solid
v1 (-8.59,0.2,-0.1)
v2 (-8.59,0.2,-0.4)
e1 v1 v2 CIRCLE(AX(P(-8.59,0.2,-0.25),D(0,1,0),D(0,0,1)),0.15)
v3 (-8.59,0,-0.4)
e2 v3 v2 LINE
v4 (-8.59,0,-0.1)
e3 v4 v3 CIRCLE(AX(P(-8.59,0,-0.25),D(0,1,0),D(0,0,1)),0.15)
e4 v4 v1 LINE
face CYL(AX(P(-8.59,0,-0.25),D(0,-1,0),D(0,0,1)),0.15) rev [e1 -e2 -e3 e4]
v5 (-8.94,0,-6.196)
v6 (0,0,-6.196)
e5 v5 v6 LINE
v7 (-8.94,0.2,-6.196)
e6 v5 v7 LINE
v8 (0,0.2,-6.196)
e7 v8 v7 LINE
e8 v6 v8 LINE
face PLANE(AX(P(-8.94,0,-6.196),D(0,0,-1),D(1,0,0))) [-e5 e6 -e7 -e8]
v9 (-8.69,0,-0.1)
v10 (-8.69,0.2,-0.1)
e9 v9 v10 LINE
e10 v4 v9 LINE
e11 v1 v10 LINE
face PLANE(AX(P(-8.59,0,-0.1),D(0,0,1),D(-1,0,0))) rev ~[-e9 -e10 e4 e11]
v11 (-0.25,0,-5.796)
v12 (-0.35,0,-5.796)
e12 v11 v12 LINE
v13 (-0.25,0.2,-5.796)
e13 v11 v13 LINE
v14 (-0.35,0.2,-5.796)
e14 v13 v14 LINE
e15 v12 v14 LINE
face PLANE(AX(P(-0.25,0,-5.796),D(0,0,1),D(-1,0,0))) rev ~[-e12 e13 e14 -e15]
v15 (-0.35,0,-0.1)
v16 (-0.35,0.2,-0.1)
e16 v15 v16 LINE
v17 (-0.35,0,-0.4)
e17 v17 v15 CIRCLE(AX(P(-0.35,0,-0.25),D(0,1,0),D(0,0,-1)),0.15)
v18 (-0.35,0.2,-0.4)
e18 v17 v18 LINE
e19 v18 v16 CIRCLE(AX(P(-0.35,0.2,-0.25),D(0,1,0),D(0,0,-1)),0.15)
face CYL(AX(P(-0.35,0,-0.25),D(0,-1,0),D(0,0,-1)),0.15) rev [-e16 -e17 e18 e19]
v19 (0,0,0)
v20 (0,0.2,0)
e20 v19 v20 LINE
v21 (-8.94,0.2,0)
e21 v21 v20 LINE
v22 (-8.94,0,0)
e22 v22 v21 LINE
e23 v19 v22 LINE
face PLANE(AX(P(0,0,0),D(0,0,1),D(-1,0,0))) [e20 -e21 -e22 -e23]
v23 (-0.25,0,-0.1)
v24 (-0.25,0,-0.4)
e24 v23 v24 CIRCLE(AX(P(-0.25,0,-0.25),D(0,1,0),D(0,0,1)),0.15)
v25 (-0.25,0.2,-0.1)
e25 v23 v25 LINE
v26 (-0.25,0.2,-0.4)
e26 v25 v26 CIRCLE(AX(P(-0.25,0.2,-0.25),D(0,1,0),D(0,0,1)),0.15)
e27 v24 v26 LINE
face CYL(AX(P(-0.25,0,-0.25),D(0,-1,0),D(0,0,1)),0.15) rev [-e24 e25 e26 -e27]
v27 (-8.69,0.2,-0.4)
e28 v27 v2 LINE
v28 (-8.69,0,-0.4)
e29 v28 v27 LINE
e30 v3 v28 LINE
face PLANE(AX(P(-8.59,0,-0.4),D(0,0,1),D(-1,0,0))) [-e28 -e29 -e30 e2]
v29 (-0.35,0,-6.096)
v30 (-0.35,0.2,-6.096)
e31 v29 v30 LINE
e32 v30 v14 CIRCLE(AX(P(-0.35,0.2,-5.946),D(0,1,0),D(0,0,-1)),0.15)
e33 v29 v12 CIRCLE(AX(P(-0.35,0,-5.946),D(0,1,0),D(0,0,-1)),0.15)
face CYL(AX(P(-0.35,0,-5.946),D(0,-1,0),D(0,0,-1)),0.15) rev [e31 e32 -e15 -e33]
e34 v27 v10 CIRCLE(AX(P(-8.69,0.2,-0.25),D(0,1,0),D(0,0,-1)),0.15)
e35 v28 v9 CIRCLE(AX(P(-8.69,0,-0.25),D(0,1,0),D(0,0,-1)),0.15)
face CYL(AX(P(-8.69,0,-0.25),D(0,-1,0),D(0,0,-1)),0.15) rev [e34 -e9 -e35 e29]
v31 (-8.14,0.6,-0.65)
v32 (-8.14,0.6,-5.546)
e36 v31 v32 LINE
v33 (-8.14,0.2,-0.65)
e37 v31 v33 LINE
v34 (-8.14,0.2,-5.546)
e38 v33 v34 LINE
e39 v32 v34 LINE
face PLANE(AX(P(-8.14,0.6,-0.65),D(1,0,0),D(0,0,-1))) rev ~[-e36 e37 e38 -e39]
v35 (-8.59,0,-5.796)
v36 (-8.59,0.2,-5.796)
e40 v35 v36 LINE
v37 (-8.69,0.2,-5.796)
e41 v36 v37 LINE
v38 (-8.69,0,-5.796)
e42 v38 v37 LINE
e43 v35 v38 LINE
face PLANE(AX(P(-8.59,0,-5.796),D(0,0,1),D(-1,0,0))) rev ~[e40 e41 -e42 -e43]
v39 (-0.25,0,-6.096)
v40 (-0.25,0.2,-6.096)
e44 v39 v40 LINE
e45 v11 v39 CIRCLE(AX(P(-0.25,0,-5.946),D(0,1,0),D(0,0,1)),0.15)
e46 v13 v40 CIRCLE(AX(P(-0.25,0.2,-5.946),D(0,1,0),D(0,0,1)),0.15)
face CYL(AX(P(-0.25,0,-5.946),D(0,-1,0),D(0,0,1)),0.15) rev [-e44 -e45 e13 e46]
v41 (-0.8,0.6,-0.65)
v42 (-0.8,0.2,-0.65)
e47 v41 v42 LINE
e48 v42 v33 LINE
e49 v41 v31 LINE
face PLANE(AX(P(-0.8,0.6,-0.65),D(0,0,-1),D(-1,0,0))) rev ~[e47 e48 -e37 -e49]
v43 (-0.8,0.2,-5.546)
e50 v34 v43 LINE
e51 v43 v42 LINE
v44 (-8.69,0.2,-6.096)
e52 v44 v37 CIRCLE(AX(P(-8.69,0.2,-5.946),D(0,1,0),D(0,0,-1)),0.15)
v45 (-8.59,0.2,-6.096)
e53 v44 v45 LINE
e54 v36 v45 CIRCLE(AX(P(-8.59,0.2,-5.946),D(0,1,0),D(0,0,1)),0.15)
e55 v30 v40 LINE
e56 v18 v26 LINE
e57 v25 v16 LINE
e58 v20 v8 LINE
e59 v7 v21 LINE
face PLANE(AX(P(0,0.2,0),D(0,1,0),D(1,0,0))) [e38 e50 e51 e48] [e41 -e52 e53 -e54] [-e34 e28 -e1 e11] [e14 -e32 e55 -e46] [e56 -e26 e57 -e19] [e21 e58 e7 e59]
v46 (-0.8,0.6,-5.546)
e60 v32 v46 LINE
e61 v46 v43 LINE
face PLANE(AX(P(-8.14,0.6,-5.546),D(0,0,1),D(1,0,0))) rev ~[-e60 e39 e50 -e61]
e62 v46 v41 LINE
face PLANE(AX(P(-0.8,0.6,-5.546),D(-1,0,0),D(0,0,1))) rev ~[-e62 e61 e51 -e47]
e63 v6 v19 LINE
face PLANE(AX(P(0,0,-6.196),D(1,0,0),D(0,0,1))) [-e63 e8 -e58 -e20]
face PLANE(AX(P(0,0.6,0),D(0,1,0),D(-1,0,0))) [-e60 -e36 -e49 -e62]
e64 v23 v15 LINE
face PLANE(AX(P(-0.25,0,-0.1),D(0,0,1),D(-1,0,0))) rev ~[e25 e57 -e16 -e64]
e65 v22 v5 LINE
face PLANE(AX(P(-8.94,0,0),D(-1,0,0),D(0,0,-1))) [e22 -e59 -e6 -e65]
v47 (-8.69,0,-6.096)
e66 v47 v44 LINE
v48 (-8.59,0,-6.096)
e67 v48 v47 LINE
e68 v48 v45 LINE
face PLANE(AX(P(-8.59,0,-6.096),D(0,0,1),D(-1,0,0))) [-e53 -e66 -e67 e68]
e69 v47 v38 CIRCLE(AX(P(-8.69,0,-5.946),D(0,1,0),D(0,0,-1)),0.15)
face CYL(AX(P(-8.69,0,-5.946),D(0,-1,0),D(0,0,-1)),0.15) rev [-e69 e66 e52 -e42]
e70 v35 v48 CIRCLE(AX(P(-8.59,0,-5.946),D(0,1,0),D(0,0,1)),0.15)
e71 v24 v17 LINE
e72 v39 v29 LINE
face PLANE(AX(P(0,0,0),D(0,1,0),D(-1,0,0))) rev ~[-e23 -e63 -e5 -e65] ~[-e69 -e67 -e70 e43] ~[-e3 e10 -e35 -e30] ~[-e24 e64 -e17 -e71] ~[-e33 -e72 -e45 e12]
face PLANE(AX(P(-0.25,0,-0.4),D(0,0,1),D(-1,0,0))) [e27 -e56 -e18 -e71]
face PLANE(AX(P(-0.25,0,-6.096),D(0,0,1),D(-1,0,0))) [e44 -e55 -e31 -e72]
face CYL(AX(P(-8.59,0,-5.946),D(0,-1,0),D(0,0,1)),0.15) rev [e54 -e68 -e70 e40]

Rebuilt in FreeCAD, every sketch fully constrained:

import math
import FreeCAD as App
import Part
import Sketcher

doc = App.newDocument("Part")
body = doc.addObject("PartDesign::Body", "Body")

# Sketch on XZ plane
sketch1 = doc.addObject("Sketcher::SketchObject", "Sketch")
body.addObject(sketch1)
sketch1.AttachmentSupport = (doc.XZ_Plane, [""])
sketch1.MapMode = "FlatFace"
sketch1.addGeometry([
    Part.LineSegment(App.Vector(-8.94, 0, 0), App.Vector(0, 0, 0)),  # 0
    Part.LineSegment(App.Vector(0, 0, 0), App.Vector(0, -6.196, 0)),  # 1
    Part.LineSegment(App.Vector(0, -6.196, 0), App.Vector(-8.94, -6.196, 0)),  # 2
    Part.LineSegment(App.Vector(-8.94, -6.196, 0), App.Vector(-8.94, 0, 0)),  # 3
    Part.ArcOfCircle(Part.Circle(App.Vector(-0.25, -5.946, 0), App.Vector(0, 0, 1), 0.15), math.radians(-90), math.radians(90)),  # 4
    Part.LineSegment(App.Vector(-0.25, -5.796, 0), App.Vector(-0.35, -5.796, 0)),  # 5
    Part.ArcOfCircle(Part.Circle(App.Vector(-0.35, -5.946, 0), App.Vector(0, 0, 1), 0.15), math.radians(90), math.radians(270)),  # 6
    Part.LineSegment(App.Vector(-0.35, -6.096, 0), App.Vector(-0.25, -6.096, 0)),  # 7
    Part.ArcOfCircle(Part.Circle(App.Vector(-8.59, -5.946, 0), App.Vector(0, 0, 1), 0.15), math.radians(-90), math.radians(90)),  # 8
    Part.LineSegment(App.Vector(-8.59, -5.796, 0), App.Vector(-8.69, -5.796, 0)),  # 9
    Part.ArcOfCircle(Part.Circle(App.Vector(-8.69, -5.946, 0), App.Vector(0, 0, 1), 0.15), math.radians(90), math.radians(270)),  # 10
    Part.LineSegment(App.Vector(-8.69, -6.096, 0), App.Vector(-8.59, -6.096, 0)),  # 11
    Part.ArcOfCircle(Part.Circle(App.Vector(-0.25, -0.25, 0), App.Vector(0, 0, 1), 0.15), math.radians(-90), math.radians(90)),  # 12
    Part.LineSegment(App.Vector(-0.25, -0.1, 0), App.Vector(-0.35, -0.1, 0)),  # 13
    Part.ArcOfCircle(Part.Circle(App.Vector(-0.35, -0.25, 0), App.Vector(0, 0, 1), 0.15), math.radians(90), math.radians(270)),  # 14
    Part.LineSegment(App.Vector(-0.35, -0.4, 0), App.Vector(-0.25, -0.4, 0)),  # 15
    Part.ArcOfCircle(Part.Circle(App.Vector(-8.59, -0.25, 0), App.Vector(0, 0, 1), 0.15), math.radians(-90), math.radians(90)),  # 16
    Part.LineSegment(App.Vector(-8.59, -0.1, 0), App.Vector(-8.69, -0.1, 0)),  # 17
    Part.ArcOfCircle(Part.Circle(App.Vector(-8.69, -0.25, 0), App.Vector(0, 0, 1), 0.15), math.radians(90), math.radians(270)),  # 18
    Part.LineSegment(App.Vector(-8.69, -0.4, 0), App.Vector(-8.59, -0.4, 0)),  # 19
], False)
sketch1.addConstraint([
    Sketcher.Constraint("Coincident", 0, 2, 1, 1),
    Sketcher.Constraint("Coincident", 1, 2, 2, 1),
    Sketcher.Constraint("Coincident", 2, 2, 3, 1),
    Sketcher.Constraint("Coincident", 3, 2, 0, 1),
    Sketcher.Constraint("Tangent", 4, 2, 5, 1),
    Sketcher.Constraint("Tangent", 5, 2, 6, 1),
    Sketcher.Constraint("Tangent", 6, 2, 7, 1),
    Sketcher.Constraint("Tangent", 7, 2, 4, 1),
    Sketcher.Constraint("Tangent", 8, 2, 9, 1),
    Sketcher.Constraint("Tangent", 9, 2, 10, 1),
    Sketcher.Constraint("Tangent", 10, 2, 11, 1),
    Sketcher.Constraint("Tangent", 11, 2, 8, 1),
    Sketcher.Constraint("Tangent", 12, 2, 13, 1),
    Sketcher.Constraint("Tangent", 13, 2, 14, 1),
    Sketcher.Constraint("Tangent", 14, 2, 15, 1),
    Sketcher.Constraint("Tangent", 15, 2, 12, 1),
    Sketcher.Constraint("Tangent", 16, 2, 17, 1),
    Sketcher.Constraint("Tangent", 17, 2, 18, 1),
    Sketcher.Constraint("Tangent", 18, 2, 19, 1),
    Sketcher.Constraint("Tangent", 19, 2, 16, 1),
    Sketcher.Constraint("Horizontal", 0),
    Sketcher.Constraint("Vertical", 1),
    Sketcher.Constraint("Horizontal", 2),
    Sketcher.Constraint("Vertical", 3),
    Sketcher.Constraint("Horizontal", 5),
    Sketcher.Constraint("Horizontal", 7),
    Sketcher.Constraint("Horizontal", 9),
    Sketcher.Constraint("Horizontal", 11),
    Sketcher.Constraint("Horizontal", 13),
    Sketcher.Constraint("Horizontal", 15),
    Sketcher.Constraint("Horizontal", 17),
    Sketcher.Constraint("Horizontal", 19),
    Sketcher.Constraint("Coincident", 0, 2, -1, 1),
    Sketcher.Constraint("Equal", 6, 8),
    Sketcher.Constraint("Equal", 10, 12),
    Sketcher.Constraint("Equal", 14, 16),
    Sketcher.Constraint("Horizontal", 6, 3, 8, 3),
    Sketcher.Constraint("Horizontal", 14, 3, 16, 3),
    Sketcher.Constraint("Vertical", 4, 3, 12, 3),
    Sketcher.Constraint("Vertical", 6, 3, 14, 3),
    Sketcher.Constraint("Vertical", 8, 3, 16, 3),
    Sketcher.Constraint("Vertical", 10, 3, 18, 3),
    Sketcher.Constraint("Equal", 7, 9),
    Sketcher.Constraint("Radius", 4, 0.15),
    Sketcher.Constraint("DistanceX", 5, 2, 5, 1, 0.1),
    Sketcher.Constraint("DistanceX", 0, 1, 0, 2, 8.94),
    Sketcher.Constraint("DistanceY", 12, 2, -1, 1, 0.1),
    Sketcher.Constraint("DistanceY", 1, 2, 4, 2, 0.4),
    Sketcher.Constraint("DistanceY", 1, 2, 1, 1, 6.196),
    Sketcher.Constraint("DistanceX", 4, 3, -1, 1, 0.25),
    Sketcher.Constraint("DistanceX", 8, 3, -1, 1, 8.59),
])
pad1 = doc.addObject("PartDesign::Pad", "Pad")
body.addObject(pad1)
pad1.Profile = sketch1
pad1.Length = 0.6
pad1.Reversed = True

# Sketch on XZ plane
sketch2 = doc.addObject("Sketcher::SketchObject", "Sketch001")
body.addObject(sketch2)
sketch2.AttachmentSupport = (doc.XZ_Plane, [""])
sketch2.MapMode = "FlatFace"
sketch2.AttachmentOffset = App.Placement(App.Vector(0, 0, -0.6), App.Rotation())
sketch2.addGeometry([
    Part.LineSegment(App.Vector(-8.94, -6.196, 0), App.Vector(-8.94, 0, 0)),  # 0
    Part.LineSegment(App.Vector(-8.94, 0, 0), App.Vector(0, 0, 0)),  # 1
    Part.LineSegment(App.Vector(0, 0, 0), App.Vector(0, -6.196, 0)),  # 2
    Part.LineSegment(App.Vector(0, -6.196, 0), App.Vector(-8.94, -6.196, 0)),  # 3
    Part.ArcOfCircle(Part.Circle(App.Vector(-8.59, -0.25, 0), App.Vector(0, 0, 1), 0.15), math.radians(-90), math.radians(90)),  # 4
    Part.LineSegment(App.Vector(-8.59, -0.1, 0), App.Vector(-8.69, -0.1, 0)),  # 5
    Part.ArcOfCircle(Part.Circle(App.Vector(-8.69, -0.25, 0), App.Vector(0, 0, 1), 0.15), math.radians(90), math.radians(270)),  # 6
    Part.LineSegment(App.Vector(-8.69, -0.4, 0), App.Vector(-8.59, -0.4, 0)),  # 7
    Part.ArcOfCircle(Part.Circle(App.Vector(-0.25, -0.25, 0), App.Vector(0, 0, 1), 0.15), math.radians(-90), math.radians(90)),  # 8
    Part.LineSegment(App.Vector(-0.25, -0.1, 0), App.Vector(-0.35, -0.1, 0)),  # 9
    Part.ArcOfCircle(Part.Circle(App.Vector(-0.35, -0.25, 0), App.Vector(0, 0, 1), 0.15), math.radians(90), math.radians(270)),  # 10
    Part.LineSegment(App.Vector(-0.35, -0.4, 0), App.Vector(-0.25, -0.4, 0)),  # 11
    Part.LineSegment(App.Vector(-8.14, -5.546, 0), App.Vector(-0.8, -5.546, 0)),  # 12
    Part.LineSegment(App.Vector(-0.8, -5.546, 0), App.Vector(-0.8, -0.65, 0)),  # 13
    Part.LineSegment(App.Vector(-0.8, -0.65, 0), App.Vector(-8.14, -0.65, 0)),  # 14
    Part.LineSegment(App.Vector(-8.14, -0.65, 0), App.Vector(-8.14, -5.546, 0)),  # 15
    Part.ArcOfCircle(Part.Circle(App.Vector(-8.59, -5.946, 0), App.Vector(0, 0, 1), 0.15), math.radians(-90), math.radians(90)),  # 16
    Part.LineSegment(App.Vector(-8.59, -5.796, 0), App.Vector(-8.69, -5.796, 0)),  # 17
    Part.ArcOfCircle(Part.Circle(App.Vector(-8.69, -5.946, 0), App.Vector(0, 0, 1), 0.15), math.radians(90), math.radians(270)),  # 18
    Part.LineSegment(App.Vector(-8.69, -6.096, 0), App.Vector(-8.59, -6.096, 0)),  # 19
    Part.ArcOfCircle(Part.Circle(App.Vector(-0.25, -5.946, 0), App.Vector(0, 0, 1), 0.15), math.radians(-90), math.radians(90)),  # 20
    Part.LineSegment(App.Vector(-0.25, -5.796, 0), App.Vector(-0.35, -5.796, 0)),  # 21
    Part.ArcOfCircle(Part.Circle(App.Vector(-0.35, -5.946, 0), App.Vector(0, 0, 1), 0.15), math.radians(90), math.radians(270)),  # 22
    Part.LineSegment(App.Vector(-0.35, -6.096, 0), App.Vector(-0.25, -6.096, 0)),  # 23
], False)
sketch2.addConstraint([
    Sketcher.Constraint("Coincident", 0, 2, 1, 1),
    Sketcher.Constraint("Coincident", 1, 2, 2, 1),
    Sketcher.Constraint("Coincident", 2, 2, 3, 1),
    Sketcher.Constraint("Coincident", 3, 2, 0, 1),
    Sketcher.Constraint("Tangent", 4, 2, 5, 1),
    Sketcher.Constraint("Tangent", 5, 2, 6, 1),
    Sketcher.Constraint("Tangent", 6, 2, 7, 1),
    Sketcher.Constraint("Tangent", 7, 2, 4, 1),
    Sketcher.Constraint("Tangent", 8, 2, 9, 1),
    Sketcher.Constraint("Tangent", 9, 2, 10, 1),
    Sketcher.Constraint("Tangent", 10, 2, 11, 1),
    Sketcher.Constraint("Tangent", 11, 2, 8, 1),
    Sketcher.Constraint("Coincident", 12, 2, 13, 1),
    Sketcher.Constraint("Coincident", 13, 2, 14, 1),
    Sketcher.Constraint("Coincident", 14, 2, 15, 1),
    Sketcher.Constraint("Coincident", 15, 2, 12, 1),
    Sketcher.Constraint("Tangent", 16, 2, 17, 1),
    Sketcher.Constraint("Tangent", 17, 2, 18, 1),
    Sketcher.Constraint("Tangent", 18, 2, 19, 1),
    Sketcher.Constraint("Tangent", 19, 2, 16, 1),
    Sketcher.Constraint("Tangent", 20, 2, 21, 1),
    Sketcher.Constraint("Tangent", 21, 2, 22, 1),
    Sketcher.Constraint("Tangent", 22, 2, 23, 1),
    Sketcher.Constraint("Tangent", 23, 2, 20, 1),
    Sketcher.Constraint("Vertical", 0),
    Sketcher.Constraint("Horizontal", 1),
    Sketcher.Constraint("Vertical", 2),
    Sketcher.Constraint("Horizontal", 3),
    Sketcher.Constraint("Horizontal", 5),
    Sketcher.Constraint("Horizontal", 7),
    Sketcher.Constraint("Horizontal", 9),
    Sketcher.Constraint("Horizontal", 11),
    Sketcher.Constraint("Horizontal", 12),
    Sketcher.Constraint("Vertical", 13),
    Sketcher.Constraint("Horizontal", 14),
    Sketcher.Constraint("Vertical", 15),
    Sketcher.Constraint("Horizontal", 17),
    Sketcher.Constraint("Horizontal", 19),
    Sketcher.Constraint("Horizontal", 21),
    Sketcher.Constraint("Horizontal", 23),
    Sketcher.Constraint("Coincident", 1, 2, -1, 1),
    Sketcher.Constraint("Equal", 6, 8),
    Sketcher.Constraint("Equal", 10, 16),
    Sketcher.Constraint("Equal", 18, 20),
    Sketcher.Constraint("Horizontal", 6, 3, 8, 3),
    Sketcher.Constraint("Horizontal", 18, 3, 20, 3),
    Sketcher.Constraint("Vertical", 4, 3, 16, 3),
    Sketcher.Constraint("Vertical", 6, 3, 18, 3),
    Sketcher.Constraint("Vertical", 8, 3, 20, 3),
    Sketcher.Constraint("Vertical", 10, 3, 22, 3),
    Sketcher.Constraint("Equal", 7, 9),
    Sketcher.Constraint("Radius", 4, 0.15),
    Sketcher.Constraint("DistanceX", 5, 2, 5, 1, 0.1),
    Sketcher.Constraint("DistanceX", 1, 1, 1, 2, 8.94),
    Sketcher.Constraint("DistanceX", 12, 1, 12, 2, 7.34),
    Sketcher.Constraint("DistanceY", 4, 2, -1, 1, 0.1),
    Sketcher.Constraint("DistanceX", 12, 2, -1, 1, 0.8),
    Sketcher.Constraint("DistanceY", 22, 3, 12, 2, 0.4),
    Sketcher.Constraint("DistanceY", 13, 2, 10, 3, 0.4),
    Sketcher.Constraint("DistanceY", 3, 2, 16, 2, 0.4),
    Sketcher.Constraint("DistanceY", 0, 1, 0, 2, 6.196),
    Sketcher.Constraint("DistanceX", 4, 3, -1, 1, 8.59),
    Sketcher.Constraint("DistanceX", 8, 3, -1, 1, 0.25),
])
pocket1 = doc.addObject("PartDesign::Pocket", "Pocket")
body.addObject(pocket1)
pocket1.Profile = sketch2
pocket1.Length = 0.4
pocket1.Reversed = True

doc.recompute()
